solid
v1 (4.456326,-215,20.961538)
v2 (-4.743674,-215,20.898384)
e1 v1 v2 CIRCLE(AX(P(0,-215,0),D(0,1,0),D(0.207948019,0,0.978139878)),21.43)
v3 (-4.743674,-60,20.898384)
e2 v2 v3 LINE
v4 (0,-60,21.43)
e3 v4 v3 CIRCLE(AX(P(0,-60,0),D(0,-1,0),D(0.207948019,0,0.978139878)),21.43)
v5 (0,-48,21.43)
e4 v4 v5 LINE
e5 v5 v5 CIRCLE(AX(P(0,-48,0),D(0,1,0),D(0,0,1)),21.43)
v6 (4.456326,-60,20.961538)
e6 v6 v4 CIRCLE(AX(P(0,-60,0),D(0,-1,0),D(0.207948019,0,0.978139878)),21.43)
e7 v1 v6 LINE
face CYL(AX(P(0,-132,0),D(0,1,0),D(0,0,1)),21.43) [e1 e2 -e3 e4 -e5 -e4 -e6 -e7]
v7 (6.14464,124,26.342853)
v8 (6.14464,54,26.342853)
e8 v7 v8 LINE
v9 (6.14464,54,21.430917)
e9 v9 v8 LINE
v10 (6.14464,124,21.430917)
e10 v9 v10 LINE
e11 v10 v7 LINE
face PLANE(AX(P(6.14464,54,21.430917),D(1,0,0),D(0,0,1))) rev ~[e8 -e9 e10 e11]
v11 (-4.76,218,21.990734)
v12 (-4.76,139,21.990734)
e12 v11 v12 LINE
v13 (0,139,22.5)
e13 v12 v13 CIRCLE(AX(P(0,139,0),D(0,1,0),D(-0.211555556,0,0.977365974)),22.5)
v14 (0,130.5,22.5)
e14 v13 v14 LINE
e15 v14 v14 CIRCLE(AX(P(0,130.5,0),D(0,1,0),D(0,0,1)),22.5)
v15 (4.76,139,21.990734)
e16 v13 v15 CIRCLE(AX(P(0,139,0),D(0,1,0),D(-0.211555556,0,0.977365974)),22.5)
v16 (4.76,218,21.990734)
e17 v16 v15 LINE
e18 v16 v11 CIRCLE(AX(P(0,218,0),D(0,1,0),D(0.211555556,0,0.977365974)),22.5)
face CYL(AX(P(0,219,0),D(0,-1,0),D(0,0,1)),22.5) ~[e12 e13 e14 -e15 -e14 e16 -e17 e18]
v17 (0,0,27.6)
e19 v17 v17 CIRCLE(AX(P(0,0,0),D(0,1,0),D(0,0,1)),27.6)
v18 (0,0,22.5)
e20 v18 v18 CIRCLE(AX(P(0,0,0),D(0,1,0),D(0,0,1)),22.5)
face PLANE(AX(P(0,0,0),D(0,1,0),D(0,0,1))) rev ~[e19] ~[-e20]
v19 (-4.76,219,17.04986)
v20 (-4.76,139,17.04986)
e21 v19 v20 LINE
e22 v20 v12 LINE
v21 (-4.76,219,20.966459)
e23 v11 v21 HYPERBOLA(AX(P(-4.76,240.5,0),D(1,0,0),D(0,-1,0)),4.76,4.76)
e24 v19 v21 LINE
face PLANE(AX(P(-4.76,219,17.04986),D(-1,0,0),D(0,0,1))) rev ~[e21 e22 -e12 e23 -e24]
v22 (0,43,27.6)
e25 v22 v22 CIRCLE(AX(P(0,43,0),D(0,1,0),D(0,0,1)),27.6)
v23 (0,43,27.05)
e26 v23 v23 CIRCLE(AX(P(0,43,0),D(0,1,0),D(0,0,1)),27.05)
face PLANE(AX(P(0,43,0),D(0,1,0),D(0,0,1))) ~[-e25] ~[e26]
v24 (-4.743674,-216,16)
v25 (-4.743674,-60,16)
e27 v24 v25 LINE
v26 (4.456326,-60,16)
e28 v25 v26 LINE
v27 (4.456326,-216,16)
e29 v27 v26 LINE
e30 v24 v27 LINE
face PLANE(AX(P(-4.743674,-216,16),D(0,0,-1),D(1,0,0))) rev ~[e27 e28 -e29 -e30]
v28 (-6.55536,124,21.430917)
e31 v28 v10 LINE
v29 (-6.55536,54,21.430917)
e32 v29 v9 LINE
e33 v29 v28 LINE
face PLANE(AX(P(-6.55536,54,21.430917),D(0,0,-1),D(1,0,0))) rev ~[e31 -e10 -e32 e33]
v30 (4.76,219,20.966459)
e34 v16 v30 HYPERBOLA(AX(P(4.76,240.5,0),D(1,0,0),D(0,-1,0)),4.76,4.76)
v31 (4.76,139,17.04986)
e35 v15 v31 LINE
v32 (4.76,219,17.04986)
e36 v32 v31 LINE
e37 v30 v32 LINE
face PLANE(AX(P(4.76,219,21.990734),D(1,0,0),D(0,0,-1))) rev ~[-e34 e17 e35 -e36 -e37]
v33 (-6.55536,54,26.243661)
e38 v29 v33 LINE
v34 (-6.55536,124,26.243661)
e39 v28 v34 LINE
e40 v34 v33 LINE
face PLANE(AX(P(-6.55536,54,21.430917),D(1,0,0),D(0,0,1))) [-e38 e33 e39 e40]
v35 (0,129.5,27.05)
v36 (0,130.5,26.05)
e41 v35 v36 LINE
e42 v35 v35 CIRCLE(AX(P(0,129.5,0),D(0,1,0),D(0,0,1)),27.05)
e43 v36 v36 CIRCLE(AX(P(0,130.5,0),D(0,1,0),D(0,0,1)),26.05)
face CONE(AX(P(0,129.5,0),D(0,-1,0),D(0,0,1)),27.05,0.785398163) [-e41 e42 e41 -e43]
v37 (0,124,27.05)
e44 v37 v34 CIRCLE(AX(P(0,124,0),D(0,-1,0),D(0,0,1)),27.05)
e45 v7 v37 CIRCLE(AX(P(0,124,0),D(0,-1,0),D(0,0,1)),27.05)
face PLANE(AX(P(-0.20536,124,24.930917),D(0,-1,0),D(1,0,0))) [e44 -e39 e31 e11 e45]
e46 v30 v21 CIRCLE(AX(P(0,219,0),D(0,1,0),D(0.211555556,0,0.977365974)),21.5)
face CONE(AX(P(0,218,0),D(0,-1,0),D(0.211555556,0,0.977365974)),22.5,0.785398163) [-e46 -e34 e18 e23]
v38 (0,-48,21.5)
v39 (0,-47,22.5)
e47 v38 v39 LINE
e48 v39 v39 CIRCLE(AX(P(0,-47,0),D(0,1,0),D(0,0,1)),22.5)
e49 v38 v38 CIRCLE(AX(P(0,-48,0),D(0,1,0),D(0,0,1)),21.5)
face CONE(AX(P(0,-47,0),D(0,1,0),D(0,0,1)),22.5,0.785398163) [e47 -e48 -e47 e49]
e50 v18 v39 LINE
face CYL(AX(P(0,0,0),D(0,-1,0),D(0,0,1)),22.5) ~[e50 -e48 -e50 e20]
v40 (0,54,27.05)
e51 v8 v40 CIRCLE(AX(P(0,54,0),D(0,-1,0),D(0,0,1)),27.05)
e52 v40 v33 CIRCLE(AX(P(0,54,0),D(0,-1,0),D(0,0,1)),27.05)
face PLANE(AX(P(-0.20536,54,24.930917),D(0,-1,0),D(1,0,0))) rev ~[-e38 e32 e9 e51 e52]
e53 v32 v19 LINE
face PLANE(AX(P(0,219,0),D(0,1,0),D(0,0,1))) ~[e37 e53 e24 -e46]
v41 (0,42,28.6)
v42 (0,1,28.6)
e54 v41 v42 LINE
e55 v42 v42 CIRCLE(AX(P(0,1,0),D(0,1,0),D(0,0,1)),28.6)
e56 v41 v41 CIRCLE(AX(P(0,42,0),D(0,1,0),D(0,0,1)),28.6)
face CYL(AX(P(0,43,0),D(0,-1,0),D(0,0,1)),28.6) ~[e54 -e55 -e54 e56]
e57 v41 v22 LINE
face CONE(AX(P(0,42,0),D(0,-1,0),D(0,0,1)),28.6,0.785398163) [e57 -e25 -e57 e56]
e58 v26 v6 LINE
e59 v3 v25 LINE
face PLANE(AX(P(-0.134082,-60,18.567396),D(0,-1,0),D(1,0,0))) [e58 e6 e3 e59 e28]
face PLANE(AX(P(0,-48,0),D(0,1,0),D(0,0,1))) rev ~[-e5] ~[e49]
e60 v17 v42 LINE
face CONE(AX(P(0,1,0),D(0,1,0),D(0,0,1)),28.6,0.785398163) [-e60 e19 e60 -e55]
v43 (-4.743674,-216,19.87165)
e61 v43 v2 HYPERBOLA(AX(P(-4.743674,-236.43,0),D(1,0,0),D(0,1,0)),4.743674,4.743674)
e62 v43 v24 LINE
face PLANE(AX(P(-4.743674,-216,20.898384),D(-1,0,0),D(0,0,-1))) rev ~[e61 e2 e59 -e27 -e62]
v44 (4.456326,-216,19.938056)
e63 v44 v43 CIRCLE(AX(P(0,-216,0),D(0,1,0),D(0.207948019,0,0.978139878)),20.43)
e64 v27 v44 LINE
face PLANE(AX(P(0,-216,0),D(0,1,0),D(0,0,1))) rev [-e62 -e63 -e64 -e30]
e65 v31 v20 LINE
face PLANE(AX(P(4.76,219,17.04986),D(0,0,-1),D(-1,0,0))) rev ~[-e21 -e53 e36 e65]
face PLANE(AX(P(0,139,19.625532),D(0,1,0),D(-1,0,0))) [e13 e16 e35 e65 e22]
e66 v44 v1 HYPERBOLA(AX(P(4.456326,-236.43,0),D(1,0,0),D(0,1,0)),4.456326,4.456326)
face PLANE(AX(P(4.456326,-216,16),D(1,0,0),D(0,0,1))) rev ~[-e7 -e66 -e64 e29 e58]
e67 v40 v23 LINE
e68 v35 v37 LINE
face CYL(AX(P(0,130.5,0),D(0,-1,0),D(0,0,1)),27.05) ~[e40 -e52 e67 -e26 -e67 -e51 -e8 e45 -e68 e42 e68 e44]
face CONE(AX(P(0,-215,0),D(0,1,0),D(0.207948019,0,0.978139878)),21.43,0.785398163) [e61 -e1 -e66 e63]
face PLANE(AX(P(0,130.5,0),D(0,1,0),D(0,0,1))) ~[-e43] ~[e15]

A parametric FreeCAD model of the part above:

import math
import FreeCAD as App
import Part
import Sketcher
from FreeCAD import Vector


def edges_at(feature, points):
    """Names of the edges that pass closest to the given points."""
    edges = feature.Shape.Edges
    near = lambda p: min(range(len(edges)), key=lambda i: edges[i].distToShape(Part.Vertex(*p))[0])
    return sorted({f"Edge{near(p) + 1}" for p in points})

doc = App.newDocument("Part")
body = doc.addObject("PartDesign::Body", "Body")

# Sketch on YZ plane
sketch1 = doc.addObject("Sketcher::SketchObject", "Sketch")
body.addObject(sketch1)
sketch1.AttachmentSupport = (doc.YZ_Plane, [""])
sketch1.MapMode = "FlatFace"
sketch1.addGeometry([
    Part.LineSegment(Vector(-216, 21.4, 0), Vector(-216, 0, 0)),  # 0
    Part.LineSegment(Vector(-216, 0, 0), Vector(219, 0, 0)),  # 1
    Part.LineSegment(Vector(219, 0, 0), Vector(219, 22.5, 0)),  # 2
    Part.LineSegment(Vector(219, 22.5, 0), Vector(130.5, 22.5, 0)),  # 3
    Part.LineSegment(Vector(130.5, 22.5, 0), Vector(130.5, 27.1, 0)),  # 4
    Part.LineSegment(Vector(130.5, 27.1, 0), Vector(43, 27.1, 0)),  # 5
    Part.LineSegment(Vector(43, 27.1, 0), Vector(43, 28.6, 0)),  # 6
    Part.LineSegment(Vector(43, 28.6, 0), Vector(0, 28.6, 0)),  # 7
    Part.LineSegment(Vector(0, 28.6, 0), Vector(0, 22.5, 0)),  # 8
    Part.LineSegment(Vector(0, 22.5, 0), Vector(-48, 22.5, 0)),  # 9
    Part.LineSegment(Vector(-48, 22.5, 0), Vector(-48, 21.4, 0)),  # 10
    Part.LineSegment(Vector(-48, 21.4, 0), Vector(-216, 21.4, 0)),  # 11
], False)
sketch1.addConstraint([
    Sketcher.Constraint("Coincident", 0, 2, 1, 1),
    Sketcher.Constraint("Coincident", 1, 2, 2, 1),
    Sketcher.Constraint("Coincident", 2, 2, 3, 1),
    Sketcher.Constraint("Coincident", 3, 2, 4, 1),
    Sketcher.Constraint("Coincident", 4, 2, 5, 1),
    Sketcher.Constraint("Coincident", 5, 2, 6, 1),
    Sketcher.Constraint("Coincident", 6, 2, 7, 1),
    Sketcher.Constraint("Coincident", 7, 2, 8, 1),
    Sketcher.Constraint("Coincident", 8, 2, 9, 1),
    Sketcher.Constraint("Coincident", 9, 2, 10, 1),
    Sketcher.Constraint("Coincident", 10, 2, 11, 1),
    Sketcher.Constraint("Coincident", 11, 2, 0, 1),
    Sketcher.Constraint("Vertical", 0),
    Sketcher.Constraint("Horizontal", 1),
    Sketcher.Constraint("Vertical", 2),
    Sketcher.Constraint("Horizontal", 3),
    Sketcher.Constraint("Vertical", 4),
    Sketcher.Constraint("Horizontal", 5),
    Sketcher.Constraint("Vertical", 6),
    Sketcher.Constraint("Horizontal", 7),
    Sketcher.Constraint("Vertical", 8),
    Sketcher.Constraint("Horizontal", 9),
    Sketcher.Constraint("Vertical", 10),
    Sketcher.Constraint("Horizontal", 11),
    Sketcher.Constraint("PointOnObject", 0, 2, -1),
    Sketcher.Constraint("PointOnObject", 7, 2, -2),
    Sketcher.Constraint("Horizontal", 3, 2, 8, 2),
    Sketcher.Constraint("DistanceX", 1, 1, 1, 2, 435.0),
    Sketcher.Constraint("DistanceX", 7, 2, 7, 1, 43.0),
    Sketcher.Constraint("DistanceX", 9, 2, 9, 1, 48.0),
    Sketcher.Constraint("DistanceX", 11, 2, 11, 1, 168.0),
    Sketcher.Constraint("DistanceX", 3, 2, 3, 1, 88.5),
    Sketcher.Constraint("DistanceY", 2, 1, 2, 2, 22.5),
    Sketcher.Constraint("DistanceY", 8, 2, 8, 1, 6.1),
    Sketcher.Constraint("DistanceY", 0, 2, 0, 1, 21.43),
    Sketcher.Constraint("DistanceY", 4, 1, 4, 2, 4.55),
])
revolution = doc.addObject("PartDesign::Revolution", "Revolution")
body.addObject(revolution)
revolution.Profile = sketch1
revolution.ReferenceAxis = (sketch1, ["H_Axis"])
revolution.Angle = 360

# Sketch on XZ plane
sketch2 = doc.addObject("Sketcher::SketchObject", "Sketch001")
body.addObject(sketch2)
sketch2.AttachmentSupport = (doc.XZ_Plane, [""])
sketch2.MapMode = "FlatFace"
sketch2.AttachmentOffset = App.Placement(Vector(0, 0, 216), App.Rotation())
sketch2.addGeometry([
    Part.LineSegment(Vector(-4.7, 16, 0), Vector(4.5, 16, 0)),
    Part.LineSegment(Vector(4.5, 16, 0), Vector(4.5, 21, 0)),
    Part.ArcOfCircle(Part.Circle(Vector(0, 0, 0), Vector(0, 0, 1), 21.4), math.radians(78), math.radians(103)),
    Part.LineSegment(Vector(-4.7, 20.9, 0), Vector(-4.7, 16, 0)),
], False)
sketch2.addConstraint([
    Sketcher.Constraint("Coincident", 0, 2, 1, 1),
    Sketcher.Constraint("Coincident", 1, 2, 2, 1),
    Sketcher.Constraint("Coincident", 2, 2, 3, 1),
    Sketcher.Constraint("Coincident", 3, 2, 0, 1),
    Sketcher.Constraint("Horizontal", 0),
    Sketcher.Constraint("Vertical", 1),
    Sketcher.Constraint("Vertical", 3),
    Sketcher.Constraint("Coincident", 2, 3, -1, 1),
    Sketcher.Constraint("Radius", 2, 21.43),
    Sketcher.Constraint("DistanceX", 0, 1, 0, 2, 9.2),
    Sketcher.Constraint("DistanceY", -1, 1, 0, 2, 16.0),
    Sketcher.Constraint("DistanceY", 1, 1, 1, 2, 4.961538),
])
pocket1 = doc.addObject("PartDesign::Pocket", "Pocket")
body.addObject(pocket1)
pocket1.Profile = sketch2
pocket1.Length = 156

# Sketch on XZ plane
sketch3 = doc.addObject("Sketcher::SketchObject", "Sketch002")
body.addObject(sketch3)
sketch3.AttachmentSupport = (doc.XZ_Plane, [""])
sketch3.MapMode = "FlatFace"
sketch3.AttachmentOffset = App.Placement(Vector(0, 0, -54), App.Rotation())
sketch3.addGeometry([
    Part.LineSegment(Vector(-7, 28, 0), Vector(-7, 21, 0)),
    Part.LineSegment(Vector(-7, 21, 0), Vector(6, 21, 0)),
    Part.LineSegment(Vector(6, 21, 0), Vector(6, 28, 0)),
    Part.LineSegment(Vector(6, 28, 0), Vector(-7, 28, 0)),
], False)
sketch3.addConstraint([
    Sketcher.Constraint("Coincident", 0, 2, 1, 1),
    Sketcher.Constraint("Coincident", 1, 2, 2, 1),
    Sketcher.Constraint("Coincident", 2, 2, 3, 1),
    Sketcher.Constraint("Coincident", 3, 2, 0, 1),
    Sketcher.Constraint("Vertical", 0),
    Sketcher.Constraint("Horizontal", 1),
    Sketcher.Constraint("Vertical", 2),
    Sketcher.Constraint("Horizontal", 3),
    Sketcher.Constraint("DistanceY", 0, 2, 0, 1, 7.0),
    Sketcher.Constraint("DistanceX", 1, 1, 1, 2, 12.7),
    Sketcher.Constraint("DistanceX", 0, 2, -1, 1, 6.55536),
    Sketcher.Constraint("DistanceY", -1, 1, 0, 2, 21.430917),
])
pocket2 = doc.addObject("PartDesign::Pocket", "Pocket001")
body.addObject(pocket2)
pocket2.Profile = sketch3
pocket2.Length = 70

# Sketch on XZ plane
sketch4 = doc.addObject("Sketcher::SketchObject", "Sketch003")
body.addObject(sketch4)
sketch4.AttachmentSupport = (doc.XZ_Plane, [""])
sketch4.MapMode = "FlatFace"
sketch4.AttachmentOffset = App.Placement(Vector(0, 0, -219), App.Rotation())
sketch4.addGeometry([
    Part.ArcOfCircle(Part.Circle(Vector(0, 0, 0), Vector(0, 0, 1), 22.5), math.radians(78), math.radians(102)),
    Part.LineSegment(Vector(4.8, 22, 0), Vector(4.8, 17, 0)),
    Part.LineSegment(Vector(4.8, 17, 0), Vector(-4.8, 17, 0)),
    Part.LineSegment(Vector(-4.8, 17, 0), Vector(-4.8, 22, 0)),
], False)
sketch4.addConstraint([
    Sketcher.Constraint("Coincident", 0, 1, 1, 1),
    Sketcher.Constraint("Coincident", 1, 2, 2, 1),
    Sketcher.Constraint("Coincident", 2, 2, 3, 1),
    Sketcher.Constraint("Coincident", 3, 2, 0, 2),
    Sketcher.Constraint("Vertical", 1),
    Sketcher.Constraint("Horizontal", 2),
    Sketcher.Constraint("Vertical", 3),
    Sketcher.Constraint("Coincident", 0, 3, -1, 1),
    Sketcher.Constraint("Horizontal", 0, 1, 3, 2),
    Sketcher.Constraint("Radius", 0, 22.5),
    Sketcher.Constraint("DistanceX", 2, 2, 2, 1, 9.52),
    Sketcher.Constraint("DistanceY", 1, 2, 1, 1, 4.940875),
])
pocket3 = doc.addObject("PartDesign::Pocket", "Pocket002")
body.addObject(pocket3)
pocket3.Profile = sketch4
pocket3.Length = 80
pocket3.Reversed = True
doc.recompute()

chamfer = doc.addObject("PartDesign::Chamfer", "Chamfer")
body.addObject(chamfer)
chamfer.Base = (pocket3, edges_at(pocket3, [(0.147, -216, -21.429)]))
chamfer.Size = 1
doc.recompute()

chamfer2 = doc.addObject("PartDesign::Chamfer", "Chamfer001")
body.addObject(chamfer2)
chamfer2.Base = (chamfer, edges_at(chamfer, [(0, -48, -22.5)]))
chamfer2.Size = 1
doc.recompute()

chamfer3 = doc.addObject("PartDesign::Chamfer", "Chamfer002")
body.addObject(chamfer3)
chamfer3.Base = (chamfer2, edges_at(chamfer2, [(0, 0, -28.6), (0, 43, -28.6)]))
chamfer3.Size = 1
doc.recompute()

chamfer4 = doc.addObject("PartDesign::Chamfer", "Chamfer003")
body.addObject(chamfer4)
chamfer4.Base = (chamfer3, edges_at(chamfer3, [(0, 130.5, -27.05), (0, 219, -22.5)]))
chamfer4.Size = 1

doc.recompute()
